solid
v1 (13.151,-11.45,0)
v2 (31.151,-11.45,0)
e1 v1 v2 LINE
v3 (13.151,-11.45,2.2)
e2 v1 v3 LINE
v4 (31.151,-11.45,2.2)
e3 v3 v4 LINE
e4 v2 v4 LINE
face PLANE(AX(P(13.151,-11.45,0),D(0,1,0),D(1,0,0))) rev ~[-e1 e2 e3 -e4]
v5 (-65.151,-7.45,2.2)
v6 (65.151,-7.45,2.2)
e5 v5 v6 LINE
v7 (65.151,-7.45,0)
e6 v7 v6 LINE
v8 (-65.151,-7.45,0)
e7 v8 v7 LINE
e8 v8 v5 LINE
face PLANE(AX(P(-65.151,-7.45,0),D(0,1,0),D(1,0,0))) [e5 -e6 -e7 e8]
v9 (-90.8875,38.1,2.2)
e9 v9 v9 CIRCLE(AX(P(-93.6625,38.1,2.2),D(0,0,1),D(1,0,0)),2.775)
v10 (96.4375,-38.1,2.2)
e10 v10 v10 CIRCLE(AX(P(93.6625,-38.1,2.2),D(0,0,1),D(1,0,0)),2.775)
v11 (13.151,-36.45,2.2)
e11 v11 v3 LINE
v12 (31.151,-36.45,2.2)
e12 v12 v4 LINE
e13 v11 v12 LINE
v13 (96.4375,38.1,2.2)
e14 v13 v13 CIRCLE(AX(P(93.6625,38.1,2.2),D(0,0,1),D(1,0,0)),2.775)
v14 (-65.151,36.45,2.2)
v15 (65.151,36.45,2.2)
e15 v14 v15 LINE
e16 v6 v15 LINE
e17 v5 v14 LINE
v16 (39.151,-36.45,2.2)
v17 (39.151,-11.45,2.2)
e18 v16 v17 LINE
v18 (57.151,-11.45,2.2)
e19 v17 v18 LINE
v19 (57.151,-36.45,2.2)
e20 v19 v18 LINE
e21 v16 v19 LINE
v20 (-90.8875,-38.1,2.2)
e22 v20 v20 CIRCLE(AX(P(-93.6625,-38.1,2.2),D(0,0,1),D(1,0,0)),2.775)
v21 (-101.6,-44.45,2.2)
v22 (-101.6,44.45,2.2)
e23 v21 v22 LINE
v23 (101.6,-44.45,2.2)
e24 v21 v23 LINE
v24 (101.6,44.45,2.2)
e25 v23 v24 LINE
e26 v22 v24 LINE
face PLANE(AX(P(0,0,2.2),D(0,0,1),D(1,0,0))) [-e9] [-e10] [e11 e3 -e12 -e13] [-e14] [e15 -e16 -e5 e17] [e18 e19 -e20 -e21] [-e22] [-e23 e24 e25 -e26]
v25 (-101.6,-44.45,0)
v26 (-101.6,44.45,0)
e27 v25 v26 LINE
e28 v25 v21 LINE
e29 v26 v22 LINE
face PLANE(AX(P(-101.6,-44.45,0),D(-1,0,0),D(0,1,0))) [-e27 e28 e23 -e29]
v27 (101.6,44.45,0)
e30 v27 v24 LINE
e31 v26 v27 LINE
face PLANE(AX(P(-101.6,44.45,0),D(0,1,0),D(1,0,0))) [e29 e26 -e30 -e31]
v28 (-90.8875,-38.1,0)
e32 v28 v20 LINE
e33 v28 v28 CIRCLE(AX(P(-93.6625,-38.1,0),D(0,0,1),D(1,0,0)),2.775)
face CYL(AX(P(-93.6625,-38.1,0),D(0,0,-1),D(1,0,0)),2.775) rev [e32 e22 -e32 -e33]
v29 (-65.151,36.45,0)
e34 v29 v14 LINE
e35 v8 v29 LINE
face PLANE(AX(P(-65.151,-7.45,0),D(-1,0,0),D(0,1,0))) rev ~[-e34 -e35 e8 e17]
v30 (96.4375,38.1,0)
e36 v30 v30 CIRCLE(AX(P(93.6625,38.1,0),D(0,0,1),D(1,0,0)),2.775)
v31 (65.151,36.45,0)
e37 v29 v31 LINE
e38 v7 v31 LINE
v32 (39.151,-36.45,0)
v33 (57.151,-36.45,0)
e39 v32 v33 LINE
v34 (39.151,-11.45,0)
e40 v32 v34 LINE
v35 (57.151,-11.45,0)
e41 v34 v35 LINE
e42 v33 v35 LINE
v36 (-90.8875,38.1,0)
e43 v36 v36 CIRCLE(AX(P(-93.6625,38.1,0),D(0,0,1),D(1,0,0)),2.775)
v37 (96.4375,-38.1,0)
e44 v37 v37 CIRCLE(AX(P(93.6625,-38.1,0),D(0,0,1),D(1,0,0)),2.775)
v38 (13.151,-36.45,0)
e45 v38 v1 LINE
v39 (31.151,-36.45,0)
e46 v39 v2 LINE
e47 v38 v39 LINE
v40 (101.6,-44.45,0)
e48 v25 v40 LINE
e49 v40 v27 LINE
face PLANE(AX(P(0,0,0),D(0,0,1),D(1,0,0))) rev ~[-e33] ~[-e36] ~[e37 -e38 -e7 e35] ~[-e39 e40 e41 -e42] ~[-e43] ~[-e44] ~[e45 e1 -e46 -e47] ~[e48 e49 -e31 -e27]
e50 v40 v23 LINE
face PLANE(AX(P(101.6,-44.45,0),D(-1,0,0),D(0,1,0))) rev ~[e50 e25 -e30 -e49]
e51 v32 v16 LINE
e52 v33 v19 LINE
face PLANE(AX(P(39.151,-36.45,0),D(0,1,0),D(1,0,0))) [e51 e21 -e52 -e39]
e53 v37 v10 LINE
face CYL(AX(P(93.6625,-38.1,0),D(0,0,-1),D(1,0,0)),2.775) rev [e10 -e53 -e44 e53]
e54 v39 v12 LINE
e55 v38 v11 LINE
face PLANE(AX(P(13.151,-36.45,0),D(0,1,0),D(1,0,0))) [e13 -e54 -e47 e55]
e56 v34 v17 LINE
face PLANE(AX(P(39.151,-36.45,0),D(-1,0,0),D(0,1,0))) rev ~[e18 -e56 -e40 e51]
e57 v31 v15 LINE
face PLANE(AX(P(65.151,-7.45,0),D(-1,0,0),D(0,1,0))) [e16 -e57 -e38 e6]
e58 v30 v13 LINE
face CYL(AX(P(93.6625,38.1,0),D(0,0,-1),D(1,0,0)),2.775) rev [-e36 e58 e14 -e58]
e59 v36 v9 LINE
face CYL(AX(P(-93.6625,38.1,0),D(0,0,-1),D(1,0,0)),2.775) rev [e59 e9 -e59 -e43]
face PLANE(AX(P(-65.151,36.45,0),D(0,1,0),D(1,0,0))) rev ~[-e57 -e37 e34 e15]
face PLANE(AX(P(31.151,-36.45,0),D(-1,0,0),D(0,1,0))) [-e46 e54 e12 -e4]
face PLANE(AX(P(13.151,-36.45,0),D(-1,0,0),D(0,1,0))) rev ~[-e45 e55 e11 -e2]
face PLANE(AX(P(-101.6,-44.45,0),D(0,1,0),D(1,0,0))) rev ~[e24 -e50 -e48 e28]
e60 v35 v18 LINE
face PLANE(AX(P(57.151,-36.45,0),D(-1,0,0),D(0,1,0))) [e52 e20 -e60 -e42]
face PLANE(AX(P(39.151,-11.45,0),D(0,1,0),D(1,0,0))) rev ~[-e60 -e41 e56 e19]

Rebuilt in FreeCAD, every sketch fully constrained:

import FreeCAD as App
import Part
import Sketcher
Q = App.Units.Quantity


def add_polygon(sketch, points):
    """Adds a closed chain of lines whose ends are joined by coincident constraints."""
    first, n = sketch.GeometryCount, len(points)
    for a, b in zip(points, points[1:] + points[:1]):
        sketch.addGeometry(Part.LineSegment(App.Vector(*a, 0), App.Vector(*b, 0)), False)
    for i in range(n):
        sketch.addConstraint(Sketcher.Constraint("Coincident", first + i, 2, first + (i + 1) % n, 1))

doc = App.newDocument("Part")
body = doc.addObject("PartDesign::Body", "Body")

# Sketch on XY plane
sketch1 = body.newObject("Sketcher::SketchObject", "Sketch")
sketch1.AttachmentSupport = (doc.getObject("XY_Plane"), [""])
sketch1.MapMode = "FlatFace"
add_polygon(sketch1, [(-101.6, 44.45), (-101.6, -44.45), (101.6, -44.45), (101.6, 44.45)])  # lines 0-3
sketch1.addGeometry(Part.Circle(App.Vector(-93.6625, -38.1, 0), App.Vector(0, 0, 1), 2.775), False)  # 4
add_polygon(sketch1, [(31.151, -36.45), (13.151, -36.45), (13.151, -11.45), (31.151, -11.45)])  # lines 5-8
add_polygon(sketch1, [(57.151, -36.45), (39.151, -36.45), (39.151, -11.45), (57.151, -11.45)])  # lines 9-12
sketch1.addGeometry(Part.Circle(App.Vector(93.6625, -38.1, 0), App.Vector(0, 0, 1), 2.775), False)  # 13
sketch1.addGeometry(Part.Circle(App.Vector(-93.6625, 38.1, 0), App.Vector(0, 0, 1), 2.775), False)  # 14
add_polygon(sketch1, [(65.151, -7.45), (-65.151, -7.45), (-65.151, 36.45), (65.151, 36.45)])  # lines 15-18
sketch1.addGeometry(Part.Circle(App.Vector(93.6625, 38.1, 0), App.Vector(0, 0, 1), 2.775), False)  # 19
sketch1.addConstraint([
    Sketcher.Constraint("Vertical", 0),
    Sketcher.Constraint("Horizontal", 1),
    Sketcher.Constraint("Vertical", 2),
    Sketcher.Constraint("Horizontal", 3),
    Sketcher.Constraint("Horizontal", 5),
    Sketcher.Constraint("Vertical", 6),
    Sketcher.Constraint("Horizontal", 7),
    Sketcher.Constraint("Vertical", 8),
    Sketcher.Constraint("Horizontal", 9),
    Sketcher.Constraint("Vertical", 10),
    Sketcher.Constraint("Horizontal", 11),
    Sketcher.Constraint("Vertical", 12),
    Sketcher.Constraint("Horizontal", 15),
    Sketcher.Constraint("Vertical", 16),
    Sketcher.Constraint("Horizontal", 17),
    Sketcher.Constraint("Vertical", 18),
    Sketcher.Constraint("Equal", 4, 13),
    Sketcher.Constraint("Equal", 13, 14),
    Sketcher.Constraint("Equal", 14, 19),
    Sketcher.Constraint("Symmetric", 13, 3, 14, 3, -1, 1),
    Sketcher.Constraint("Symmetric", 4, 3, 19, 3, -1, 1),
    Sketcher.Constraint("Symmetric", 0, 2, 2, 2, -1, 1),
    Sketcher.Constraint("Symmetric", 4, 3, 13, 3, -2),
    Sketcher.Constraint("Horizontal", 8, 2, 9, 2),
    Sketcher.Constraint("Horizontal", 7, 2, 10, 2),
    Sketcher.Constraint("Equal", 7, 9),
    Sketcher.Constraint("Diameter", 4, Q("5.55 mm")),
    Sketcher.Constraint("DistanceX", 5, 2, 5, 1, Q("18 mm")),
    Sketcher.Constraint("DistanceY", 6, 1, 6, 2, Q("25 mm")),
    Sketcher.Constraint("DistanceX", 1, 1, 1, 2, Q("203.2 mm")),
    Sketcher.Constraint("DistanceY", 0, 2, 0, 1, Q("88.9 mm")),
    Sketcher.Constraint("DistanceY", 16, 1, 16, 2, Q("43.9 mm")),
    Sketcher.Constraint("DistanceY", 1, 2, 5, 2, Q("8 mm")),
    Sketcher.Constraint("DistanceX", 8, 2, 9, 2, Q("8 mm")),
    Sketcher.Constraint("DistanceY", 0, 2, 15, 2, Q("37 mm")),
    Sketcher.Constraint("DistanceX", 11, 2, 17, 2, Q("8 mm")),
    Sketcher.Constraint("DistanceY", 4, 3, -1, 1, Q("38.1 mm")),
    Sketcher.Constraint("DistanceX", 15, 2, 15, 1, Q("130.302 mm")),
    Sketcher.Constraint("DistanceX", -1, 1, 5, 2, Q("13.151 mm")),
    Sketcher.Constraint("DistanceX", 4, 3, 13, 3, Q("187.325 mm")),
])
pad1 = body.newObject("PartDesign::Pad", "Pad")
pad1.Profile = sketch1
pad1.Length = 2.2

doc.recompute()
